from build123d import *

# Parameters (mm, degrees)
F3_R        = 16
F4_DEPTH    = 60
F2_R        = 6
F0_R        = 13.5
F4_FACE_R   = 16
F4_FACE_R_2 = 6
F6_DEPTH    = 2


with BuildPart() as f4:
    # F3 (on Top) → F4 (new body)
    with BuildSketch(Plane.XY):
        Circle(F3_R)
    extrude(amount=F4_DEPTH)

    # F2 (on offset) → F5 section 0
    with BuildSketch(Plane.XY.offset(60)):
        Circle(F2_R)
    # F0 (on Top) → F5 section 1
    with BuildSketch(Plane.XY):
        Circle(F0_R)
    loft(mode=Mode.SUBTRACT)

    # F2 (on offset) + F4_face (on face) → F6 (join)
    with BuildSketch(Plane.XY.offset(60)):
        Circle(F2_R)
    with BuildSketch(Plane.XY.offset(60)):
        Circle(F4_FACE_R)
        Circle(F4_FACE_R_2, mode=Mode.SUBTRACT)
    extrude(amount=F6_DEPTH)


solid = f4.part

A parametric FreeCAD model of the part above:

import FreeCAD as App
import Part
import Sketcher
Q = App.Units.Quantity

doc = App.newDocument("Part")
body = doc.addObject("PartDesign::Body", "Body")

# Sketch on XY plane
sketch1 = body.newObject("Sketcher::SketchObject", "Sketch")
sketch1.AttachmentSupport = (doc.getObject("XY_Plane"), [""])
sketch1.MapMode = "FlatFace"
sketch1.addGeometry(Part.Circle(App.Vector(0, 0, 0), App.Vector(0, 0, 1), 16), False)
sketch1.addConstraint(Sketcher.Constraint("Coincident", 0, 3, -1, 1))
sketch1.addConstraint(Sketcher.Constraint("Diameter", 0, Q("32 mm")))
pad1 = body.newObject("PartDesign::Pad", "Pad")
pad1.Profile = sketch1
pad1.Length = 60

# Sketch on XY plane
sketch2 = body.newObject("Sketcher::SketchObject", "Sketch001")
sketch2.AttachmentSupport = (doc.getObject("XY_Plane"), [""])
sketch2.MapMode = "FlatFace"
sketch2.AttachmentOffset = App.Placement(App.Vector(0, 0, 60), App.Rotation())
sketch2.addGeometry(Part.Circle(App.Vector(0, 0, 0), App.Vector(0, 0, 1), 6), False)
sketch2.addConstraint(Sketcher.Constraint("Coincident", 0, 3, -1, 1))
sketch2.addConstraint(Sketcher.Constraint("Diameter", 0, Q("12 mm")))

# Sketch on XY plane
sketch3 = body.newObject("Sketcher::SketchObject", "Sketch002")
sketch3.AttachmentSupport = (doc.getObject("XY_Plane"), [""])
sketch3.MapMode = "FlatFace"
sketch3.addGeometry(Part.Circle(App.Vector(0, 0, 0), App.Vector(0, 0, 1), 13.5), False)
sketch3.addConstraint(Sketcher.Constraint("Coincident", 0, 3, -1, 1))
sketch3.addConstraint(Sketcher.Constraint("Diameter", 0, Q("27 mm")))

subtractiveloft = body.newObject("PartDesign::SubtractiveLoft", "SubtractiveLoft")
subtractiveloft.Profile = sketch2
subtractiveloft.Sections = [sketch3]

# Sketch on XY plane
sketch4 = body.newObject("Sketcher::SketchObject", "Sketch003")
sketch4.AttachmentSupport = (doc.getObject("XY_Plane"), [""])
sketch4.MapMode = "FlatFace"
sketch4.AttachmentOffset = App.Placement(App.Vector(0, 0, 60), App.Rotation())
sketch4.addGeometry(Part.Circle(App.Vector(0, 0, 0), App.Vector(0, 0, 1), 16), False)
sketch4.addConstraint(Sketcher.Constraint("Coincident", 0, 3, -1, 1))
sketch4.addConstraint(Sketcher.Constraint("Diameter", 0, Q("32 mm")))
pad2 = body.newObject("PartDesign::Pad", "Pad001")
pad2.Profile = sketch4
pad2.Length = 2

doc.recompute()
